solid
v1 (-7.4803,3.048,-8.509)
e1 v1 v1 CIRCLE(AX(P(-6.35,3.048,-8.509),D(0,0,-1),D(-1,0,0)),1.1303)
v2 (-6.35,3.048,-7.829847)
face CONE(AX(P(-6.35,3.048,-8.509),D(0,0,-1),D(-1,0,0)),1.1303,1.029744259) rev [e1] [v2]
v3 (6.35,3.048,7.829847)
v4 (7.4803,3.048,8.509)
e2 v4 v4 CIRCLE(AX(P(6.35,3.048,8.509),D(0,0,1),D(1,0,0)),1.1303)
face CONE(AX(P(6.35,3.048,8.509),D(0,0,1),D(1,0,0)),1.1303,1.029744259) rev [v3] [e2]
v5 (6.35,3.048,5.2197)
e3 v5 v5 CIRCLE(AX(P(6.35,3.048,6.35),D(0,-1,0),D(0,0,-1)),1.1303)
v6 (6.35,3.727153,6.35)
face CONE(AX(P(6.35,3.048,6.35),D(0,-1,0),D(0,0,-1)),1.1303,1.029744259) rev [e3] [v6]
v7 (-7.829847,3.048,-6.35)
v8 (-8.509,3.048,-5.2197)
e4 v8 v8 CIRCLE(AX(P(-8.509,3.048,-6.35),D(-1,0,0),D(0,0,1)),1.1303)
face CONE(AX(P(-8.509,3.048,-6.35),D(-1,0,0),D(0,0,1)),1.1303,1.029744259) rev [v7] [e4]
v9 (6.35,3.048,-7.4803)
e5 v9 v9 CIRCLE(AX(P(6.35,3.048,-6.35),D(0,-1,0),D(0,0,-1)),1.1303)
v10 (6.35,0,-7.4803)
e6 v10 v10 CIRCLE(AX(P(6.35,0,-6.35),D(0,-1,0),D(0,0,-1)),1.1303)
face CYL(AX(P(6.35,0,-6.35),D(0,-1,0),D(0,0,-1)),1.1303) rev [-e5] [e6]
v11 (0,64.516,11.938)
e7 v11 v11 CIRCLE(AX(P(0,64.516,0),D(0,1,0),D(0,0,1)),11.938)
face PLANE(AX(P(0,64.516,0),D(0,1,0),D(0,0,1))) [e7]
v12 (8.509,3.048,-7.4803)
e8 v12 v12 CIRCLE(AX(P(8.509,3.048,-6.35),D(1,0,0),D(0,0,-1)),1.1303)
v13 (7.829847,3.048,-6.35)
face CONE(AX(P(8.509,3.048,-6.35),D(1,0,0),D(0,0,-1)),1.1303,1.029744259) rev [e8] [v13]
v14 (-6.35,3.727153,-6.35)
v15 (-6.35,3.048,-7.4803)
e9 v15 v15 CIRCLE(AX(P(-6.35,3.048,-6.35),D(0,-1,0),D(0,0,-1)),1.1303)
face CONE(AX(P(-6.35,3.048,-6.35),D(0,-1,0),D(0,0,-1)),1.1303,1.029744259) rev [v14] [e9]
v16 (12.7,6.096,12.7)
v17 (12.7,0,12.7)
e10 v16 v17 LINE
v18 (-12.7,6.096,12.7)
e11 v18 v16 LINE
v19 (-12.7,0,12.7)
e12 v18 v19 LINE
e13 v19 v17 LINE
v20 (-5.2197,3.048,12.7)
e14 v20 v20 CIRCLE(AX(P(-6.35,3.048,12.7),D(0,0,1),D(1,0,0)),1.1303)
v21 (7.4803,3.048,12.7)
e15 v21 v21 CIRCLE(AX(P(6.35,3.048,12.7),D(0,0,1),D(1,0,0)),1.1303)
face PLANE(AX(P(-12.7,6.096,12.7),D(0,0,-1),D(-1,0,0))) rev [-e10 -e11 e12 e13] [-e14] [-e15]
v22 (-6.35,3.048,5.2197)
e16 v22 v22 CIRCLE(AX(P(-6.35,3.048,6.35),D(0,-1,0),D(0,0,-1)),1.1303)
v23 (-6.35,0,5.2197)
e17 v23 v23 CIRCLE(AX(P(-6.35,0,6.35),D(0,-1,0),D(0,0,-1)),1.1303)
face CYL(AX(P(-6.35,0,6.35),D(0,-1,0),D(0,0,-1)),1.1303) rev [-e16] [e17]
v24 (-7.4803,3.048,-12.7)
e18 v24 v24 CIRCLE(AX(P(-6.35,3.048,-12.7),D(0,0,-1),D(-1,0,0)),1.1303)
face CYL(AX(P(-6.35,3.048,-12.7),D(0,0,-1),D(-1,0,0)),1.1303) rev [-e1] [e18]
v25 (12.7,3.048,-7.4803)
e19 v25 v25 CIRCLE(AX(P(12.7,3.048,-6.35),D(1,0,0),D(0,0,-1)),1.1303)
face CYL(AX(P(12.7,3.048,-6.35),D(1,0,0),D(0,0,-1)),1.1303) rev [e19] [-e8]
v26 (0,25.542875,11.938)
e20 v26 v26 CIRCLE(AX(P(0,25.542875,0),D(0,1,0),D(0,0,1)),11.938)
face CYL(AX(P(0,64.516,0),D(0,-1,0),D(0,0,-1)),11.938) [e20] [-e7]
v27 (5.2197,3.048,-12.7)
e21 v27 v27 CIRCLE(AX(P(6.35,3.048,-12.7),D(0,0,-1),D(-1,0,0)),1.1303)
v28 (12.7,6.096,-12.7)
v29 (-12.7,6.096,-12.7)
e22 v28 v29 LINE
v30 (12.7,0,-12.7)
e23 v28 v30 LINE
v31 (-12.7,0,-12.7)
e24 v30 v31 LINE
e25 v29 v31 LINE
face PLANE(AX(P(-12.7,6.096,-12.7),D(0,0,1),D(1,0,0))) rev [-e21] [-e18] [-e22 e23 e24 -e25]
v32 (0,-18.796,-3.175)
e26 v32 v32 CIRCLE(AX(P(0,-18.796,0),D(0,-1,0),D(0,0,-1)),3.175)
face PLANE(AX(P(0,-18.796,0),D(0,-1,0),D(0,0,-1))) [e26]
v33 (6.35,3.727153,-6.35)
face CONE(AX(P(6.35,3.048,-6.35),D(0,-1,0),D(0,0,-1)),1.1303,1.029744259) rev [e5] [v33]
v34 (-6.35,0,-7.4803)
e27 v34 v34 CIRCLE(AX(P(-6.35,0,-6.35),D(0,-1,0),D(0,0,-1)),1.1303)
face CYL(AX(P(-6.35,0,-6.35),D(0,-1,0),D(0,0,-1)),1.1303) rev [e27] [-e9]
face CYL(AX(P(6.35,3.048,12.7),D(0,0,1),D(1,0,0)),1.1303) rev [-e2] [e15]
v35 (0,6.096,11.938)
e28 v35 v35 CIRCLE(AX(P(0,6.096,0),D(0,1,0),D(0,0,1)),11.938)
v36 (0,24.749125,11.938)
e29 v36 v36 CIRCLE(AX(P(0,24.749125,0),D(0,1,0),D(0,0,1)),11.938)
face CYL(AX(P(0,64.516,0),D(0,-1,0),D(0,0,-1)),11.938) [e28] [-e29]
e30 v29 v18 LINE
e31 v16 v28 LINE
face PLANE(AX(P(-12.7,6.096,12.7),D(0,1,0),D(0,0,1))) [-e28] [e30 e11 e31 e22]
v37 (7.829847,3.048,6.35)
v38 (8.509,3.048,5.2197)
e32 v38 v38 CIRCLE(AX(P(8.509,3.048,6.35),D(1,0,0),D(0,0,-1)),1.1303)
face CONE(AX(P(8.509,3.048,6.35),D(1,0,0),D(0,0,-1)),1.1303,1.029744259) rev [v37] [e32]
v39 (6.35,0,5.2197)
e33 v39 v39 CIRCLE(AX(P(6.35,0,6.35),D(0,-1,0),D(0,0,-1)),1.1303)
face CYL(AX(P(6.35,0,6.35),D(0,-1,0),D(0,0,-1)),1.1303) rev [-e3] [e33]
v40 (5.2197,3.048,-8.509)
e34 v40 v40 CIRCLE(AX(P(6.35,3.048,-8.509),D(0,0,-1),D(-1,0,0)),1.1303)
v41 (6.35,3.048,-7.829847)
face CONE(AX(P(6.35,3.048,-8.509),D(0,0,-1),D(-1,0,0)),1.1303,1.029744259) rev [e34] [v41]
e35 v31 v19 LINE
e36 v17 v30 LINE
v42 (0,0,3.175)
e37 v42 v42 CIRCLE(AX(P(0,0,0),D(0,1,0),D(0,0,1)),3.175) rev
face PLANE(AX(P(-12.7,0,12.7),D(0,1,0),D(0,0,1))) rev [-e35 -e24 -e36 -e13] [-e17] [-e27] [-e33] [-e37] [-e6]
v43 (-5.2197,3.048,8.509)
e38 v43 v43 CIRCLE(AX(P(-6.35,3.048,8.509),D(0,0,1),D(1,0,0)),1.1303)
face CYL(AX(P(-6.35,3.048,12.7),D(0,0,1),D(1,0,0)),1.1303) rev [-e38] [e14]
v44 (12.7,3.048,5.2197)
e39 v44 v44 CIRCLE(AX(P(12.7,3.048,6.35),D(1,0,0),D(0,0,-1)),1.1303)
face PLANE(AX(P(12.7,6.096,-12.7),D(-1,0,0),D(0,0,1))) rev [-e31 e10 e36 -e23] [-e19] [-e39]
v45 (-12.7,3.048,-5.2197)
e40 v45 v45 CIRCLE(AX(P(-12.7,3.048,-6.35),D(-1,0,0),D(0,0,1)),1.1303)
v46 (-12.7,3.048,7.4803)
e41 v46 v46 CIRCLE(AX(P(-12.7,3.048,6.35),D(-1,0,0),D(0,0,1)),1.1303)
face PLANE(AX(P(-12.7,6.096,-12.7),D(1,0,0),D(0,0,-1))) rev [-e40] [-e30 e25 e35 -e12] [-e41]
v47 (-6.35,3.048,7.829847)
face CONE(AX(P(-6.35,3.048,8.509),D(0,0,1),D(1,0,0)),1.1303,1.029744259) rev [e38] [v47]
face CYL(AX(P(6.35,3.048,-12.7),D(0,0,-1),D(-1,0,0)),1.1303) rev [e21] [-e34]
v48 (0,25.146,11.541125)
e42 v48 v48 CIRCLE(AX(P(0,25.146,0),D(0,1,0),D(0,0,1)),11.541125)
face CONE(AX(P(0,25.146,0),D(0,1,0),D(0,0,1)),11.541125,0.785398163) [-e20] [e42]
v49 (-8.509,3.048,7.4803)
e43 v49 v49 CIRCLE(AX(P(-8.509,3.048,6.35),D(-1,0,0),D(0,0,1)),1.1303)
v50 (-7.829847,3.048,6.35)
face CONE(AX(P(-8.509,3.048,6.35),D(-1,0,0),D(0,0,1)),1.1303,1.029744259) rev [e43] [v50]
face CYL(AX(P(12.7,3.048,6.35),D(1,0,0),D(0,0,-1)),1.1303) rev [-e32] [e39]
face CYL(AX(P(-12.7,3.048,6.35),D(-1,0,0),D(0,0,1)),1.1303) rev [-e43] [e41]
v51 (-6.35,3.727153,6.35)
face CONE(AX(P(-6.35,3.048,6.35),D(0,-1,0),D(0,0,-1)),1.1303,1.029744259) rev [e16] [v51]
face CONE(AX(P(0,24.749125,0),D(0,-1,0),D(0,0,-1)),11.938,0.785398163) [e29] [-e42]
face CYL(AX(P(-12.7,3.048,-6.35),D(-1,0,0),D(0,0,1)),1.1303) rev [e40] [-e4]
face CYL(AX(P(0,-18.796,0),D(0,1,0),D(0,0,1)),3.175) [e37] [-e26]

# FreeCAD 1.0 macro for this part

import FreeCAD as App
import Part
import Sketcher

V = App.Vector
Q = App.Units.Quantity

doc = App.newDocument("Part")
body = doc.addObject("PartDesign::Body", "Body")

sketch1 = body.newObject("Sketcher::SketchObject", "Sketch")
sketch1.AttachmentSupport = (doc.getObject("XZ_Plane"), [""])
sketch1.MapMode = "FlatFace"
sketch1.addGeometry([
    Part.LineSegment(V(-13, -13, 0), V(-13, 13, 0)),
    Part.LineSegment(V(-13, 13, 0), V(13, 13, 0)),
    Part.LineSegment(V(13, 13, 0), V(13, -13, 0)),
    Part.LineSegment(V(13, -13, 0), V(-13, -13, 0)),
], False)
sketch1.addConstraint([
    Sketcher.Constraint("Coincident", 0, 2, 1, 1),
    Sketcher.Constraint("Coincident", 1, 2, 2, 1),
    Sketcher.Constraint("Coincident", 2, 2, 3, 1),
    Sketcher.Constraint("Coincident", 3, 2, 0, 1),
    Sketcher.Constraint("Vertical", 0),
    Sketcher.Constraint("Horizontal", 1),
    Sketcher.Constraint("Vertical", 2),
    Sketcher.Constraint("Horizontal", 3),
    Sketcher.Constraint("Symmetric", 0, 2, 2, 2, -1, 1),
    Sketcher.Constraint("Equal", 3, 0),
    Sketcher.Constraint("DistanceX", 1, 1, 1, 2, Q("1 in")),
])
pad1 = body.newObject("PartDesign::Pad", "Pad")
pad1.Profile = sketch1
pad1.Length = Q("0.24 in")
pad1.Reversed = True

sketch2 = body.newObject("Sketcher::SketchObject", "Sketch001")
sketch2.AttachmentSupport = (doc.getObject("XZ_Plane"), [""])
sketch2.MapMode = "FlatFace"
sketch2.AttachmentOffset = App.Placement(V(0, 0, -0.24 * 25.4), App.Rotation())
sketch2.addGeometry(Part.Circle(V(0, 0, 0), V(0, 0, 1), 12), False)
sketch2.addConstraint([
    Sketcher.Constraint("Coincident", 0, 3, -1, 1),
    Sketcher.Constraint("Diameter", 0, Q("0.94 in")),
])
pad2 = body.newObject("PartDesign::Pad", "Pad001")
pad2.Profile = sketch2
pad2.Length = Q("2.3 in")
pad2.Reversed = True

sketch3 = body.newObject("Sketcher::SketchObject", "Sketch002")
sketch3.AttachmentSupport = (doc.getObject("XZ_Plane"), [""])
sketch3.MapMode = "FlatFace"
sketch3.addGeometry(Part.Circle(V(0, 0, 0), V(0, 0, 1), 3.2), False)
sketch3.addConstraint([
    Sketcher.Constraint("Coincident", 0, 3, -1, 1),
    Sketcher.Constraint("Diameter", 0, Q("0.25 in")),
])
pad3 = body.newObject("PartDesign::Pad", "Pad002")
pad3.Profile = sketch3
pad3.Length = Q("0.74 in")

sketch4 = body.newObject("Sketcher::SketchObject", "Sketch003")
sketch4.AttachmentSupport = (doc.getObject("XZ_Plane"), [""])
sketch4.MapMode = "FlatFace"
sketch4.addGeometry([
    Part.Circle(V(6.3, -6.3, 0), V(0, 0, 1), 1.1),
    Part.Circle(V(6.3, 6.3, 0), V(0, 0, 1), 1.1),
    Part.Circle(V(-6.3, 6.3, 0), V(0, 0, 1), 1.1),
    Part.Circle(V(-6.3, -6.3, 0), V(0, 0, 1), 1.1),
], False)
sketch4.addConstraint([
    Sketcher.Constraint("Equal", 0, 1),
    Sketcher.Constraint("Equal", 1, 2),
    Sketcher.Constraint("Equal", 2, 3),
    Sketcher.Constraint("Symmetric", 0, 3, 2, 3, -1, 1),
    Sketcher.Constraint("Symmetric", 1, 3, 3, 3, -1, 1),
    Sketcher.Constraint("Symmetric", 1, 3, 2, 3, -2),
    Sketcher.Constraint("Diameter", 0, Q("0.089 in")),
    Sketcher.Constraint("DistanceY", 0, 3, 1, 3, Q("0.5 in")),
    Sketcher.Constraint("DistanceX", 2, 3, 1, 3, Q("0.5 in")),
])
doc.recompute()
hole = body.newObject("PartDesign::Hole", "Hole")
hole.Profile = sketch4
hole.ThreadType = "None"
hole.Diameter = Q("0.089 in")
hole.DepthType = "Dimension"
hole.Depth = Q("0.12 in")
hole.DrillPoint = "Angled"
hole.DrillPointAngle = 118

sketch5 = body.newObject("Sketcher::SketchObject", "Sketch004")
sketch5.AttachmentSupport = (doc.getObject("XZ_Plane"), [""])
sketch5.MapMode = "FlatFace"
sketch5.AttachmentOffset = App.Placement(V(0, 0, -0.12 * 25.4), App.Rotation())
sketch5.addGeometry([
    Part.LineSegment(V(-7.8, -6.3, 0), V(-12.7, -6.3, 0)),
    Part.LineSegment(V(-12.7, -6.3, 0), V(-12.7, -5.2, 0)),
    Part.LineSegment(V(-12.7, -5.2, 0), V(-8.5, -5.2, 0)),
    Part.LineSegment(V(-8.5, -5.2, 0), V(-7.8, -6.3, 0)),
], False)
sketch5.addGeometry(Part.LineSegment(V(-12.7, -6.3, 0), V(-7.8, -6.3, 0)), True)
sketch5.addConstraint([
    Sketcher.Constraint("Coincident", 0, 2, 1, 1),
    Sketcher.Constraint("Coincident", 1, 2, 2, 1),
    Sketcher.Constraint("Coincident", 2, 2, 3, 1),
    Sketcher.Constraint("Coincident", 3, 2, 0, 1),
    Sketcher.Constraint("Horizontal", 0),
    Sketcher.Constraint("Vertical", 1),
    Sketcher.Constraint("Horizontal", 2),
    Sketcher.Constraint("Horizontal", 4),
    Sketcher.Constraint("Coincident", 4, 1, 0, 2),
    Sketcher.Constraint("Equal", 0, 4),
    Sketcher.Constraint("Angle", 3, Q("-59 deg")),
    Sketcher.Constraint("DistanceX", 0, 2, -1, 1, Q("0.5 in")),
    Sketcher.Constraint("DistanceX", 2, 1, 2, 2, Q("0.165 in")),
    Sketcher.Constraint("DistanceY", 0, 2, -1, 1, Q("0.25 in")),
    Sketcher.Constraint("DistanceY", 1, 1, 1, 2, Q("0.0445 in")),
])
groove = body.newObject("PartDesign::Groove", "Groove")
groove.Profile = sketch5
groove.ReferenceAxis = (sketch5, ["Axis0"])
groove.Angle = 360
doc.recompute()

linearpattern = body.newObject("PartDesign::LinearPattern", "LinearPattern")
linearpattern.Originals = [groove]
linearpattern.Direction = (doc.getObject("Z_Axis"), [""])
linearpattern.Mode = "offset"
linearpattern.Offset = Q("0.5 in")
linearpattern.Occurrences = 2
body.Tip = linearpattern
doc.recompute()

polarpattern = body.newObject("PartDesign::PolarPattern", "PolarPattern")
polarpattern.Originals = [groove]
polarpattern.Axis = (doc.getObject("Y_Axis"), [""])
polarpattern.Angle = 360
polarpattern.Occurrences = 4
body.Tip = polarpattern

sketch6 = body.newObject("Sketcher::SketchObject", "Sketch005")
sketch6.AttachmentSupport = (doc.getObject("XZ_Plane"), [""])
sketch6.MapMode = "FlatFace"
sketch6.AttachmentOffset = App.Placement(V(0, 0, -0.12 * 25.4), App.Rotation())
sketch6.addGeometry([
    Part.LineSegment(V(6.3, 7.8, 0), V(6.3, 12.7, 0)),
    Part.LineSegment(V(6.3, 12.7, 0), V(7.5, 12.7, 0)),
    Part.LineSegment(V(7.5, 12.7, 0), V(7.5, 8.5, 0)),
    Part.LineSegment(V(7.5, 8.5, 0), V(6.3, 7.8, 0)),
], False)
sketch6.addGeometry(Part.LineSegment(V(6.3, 12.7, 0), V(6.3, 7.8, 0)), True)
sketch6.addConstraint([
    Sketcher.Constraint("Coincident", 0, 2, 1, 1),
    Sketcher.Constraint("Coincident", 1, 2, 2, 1),
    Sketcher.Constraint("Coincident", 2, 2, 3, 1),
    Sketcher.Constraint("Coincident", 3, 2, 0, 1),
    Sketcher.Constraint("Vertical", 0),
    Sketcher.Constraint("Horizontal", 1),
    Sketcher.Constraint("Vertical", 2),
    Sketcher.Constraint("Vertical", 4),
    Sketcher.Constraint("Coincident", 4, 1, 0, 2),
    Sketcher.Constraint("Equal", 0, 4),
    Sketcher.Constraint("Angle", 3, Q("-149 deg")),
    Sketcher.Constraint("DistanceY", -1, 1, 0, 2, Q("0.5 in")),
    Sketcher.Constraint("DistanceY", 2, 2, 2, 1, Q("0.165 in")),
    Sketcher.Constraint("DistanceX", -1, 1, 0, 2, Q("0.25 in")),
    Sketcher.Constraint("DistanceX", 1, 1, 1, 2, Q("0.0445 in")),
])
groove2 = body.newObject("PartDesign::Groove", "Groove001")
groove2.Profile = sketch6
groove2.ReferenceAxis = (sketch6, ["Axis0"])
groove2.Angle = 360

sketch7 = body.newObject("Sketcher::SketchObject", "Sketch006")
sketch7.AttachmentSupport = (doc.getObject("XZ_Plane"), [""])
sketch7.MapMode = "FlatFace"
sketch7.AttachmentOffset = App.Placement(V(0, 0, -0.12 * 25.4), App.Rotation())
sketch7.addGeometry([
    Part.LineSegment(V(7.8, -6.3, 0), V(12.7, -6.3, 0)),
    Part.LineSegment(V(12.7, -6.3, 0), V(12.7, -7.5, 0)),
    Part.LineSegment(V(12.7, -7.5, 0), V(8.5, -7.5, 0)),
    Part.LineSegment(V(8.5, -7.5, 0), V(7.8, -6.3, 0)),
], False)
sketch7.addGeometry(Part.LineSegment(V(12.7, -6.3, 0), V(7.8, -6.3, 0)), True)
sketch7.addConstraint([
    Sketcher.Constraint("Coincident", 0, 2, 1, 1),
    Sketcher.Constraint("Coincident", 1, 2, 2, 1),
    Sketcher.Constraint("Coincident", 2, 2, 3, 1),
    Sketcher.Constraint("Coincident", 3, 2, 0, 1),
    Sketcher.Constraint("Horizontal", 0),
    Sketcher.Constraint("Vertical", 1),
    Sketcher.Constraint("Horizontal", 2),
    Sketcher.Constraint("Horizontal", 4),
    Sketcher.Constraint("Coincident", 4, 1, 0, 2),
    Sketcher.Constraint("Equal", 0, 4),
    Sketcher.Constraint("Angle", 3, Q("121 deg")),
    Sketcher.Constraint("DistanceX", -1, 1, 0, 2, Q("0.5 in")),
    Sketcher.Constraint("DistanceX", 2, 2, 2, 1, Q("0.165 in")),
    Sketcher.Constraint("DistanceY", 0, 2, -1, 1, Q("0.25 in")),
    Sketcher.Constraint("DistanceY", 1, 2, 1, 1, Q("0.0445 in")),
])
groove3 = body.newObject("PartDesign::Groove", "Groove002")
groove3.Profile = sketch7
groove3.ReferenceAxis = (sketch7, ["Axis0"])
groove3.Angle = 360

sketch8 = body.newObject("Sketcher::SketchObject", "Sketch007")
sketch8.AttachmentSupport = (doc.getObject("XZ_Plane"), [""])
sketch8.MapMode = "FlatFace"
sketch8.AttachmentOffset = App.Placement(V(0, 0, -0.12 * 25.4), App.Rotation())
sketch8.addGeometry([
    Part.LineSegment(V(-6.3, -7.8, 0), V(-6.3, -12.7, 0)),
    Part.LineSegment(V(-6.3, -12.7, 0), V(-7.5, -12.7, 0)),
    Part.LineSegment(V(-7.5, -12.7, 0), V(-7.5, -8.5, 0)),
    Part.LineSegment(V(-7.5, -8.5, 0), V(-6.3, -7.8, 0)),
], False)
sketch8.addGeometry(Part.LineSegment(V(-6.3, -12.7, 0), V(-6.3, -7.8, 0)), True)
sketch8.addConstraint([
    Sketcher.Constraint("Coincident", 0, 2, 1, 1),
    Sketcher.Constraint("Coincident", 1, 2, 2, 1),
    Sketcher.Constraint("Coincident", 2, 2, 3, 1),
    Sketcher.Constraint("Coincident", 3, 2, 0, 1),
    Sketcher.Constraint("Vertical", 0),
    Sketcher.Constraint("Horizontal", 1),
    Sketcher.Constraint("Vertical", 2),
    Sketcher.Constraint("Vertical", 4),
    Sketcher.Constraint("Coincident", 4, 1, 0, 2),
    Sketcher.Constraint("Equal", 0, 4),
    Sketcher.Constraint("Angle", 3, Q("31 deg")),
    Sketcher.Constraint("DistanceY", 0, 2, -1, 1, Q("0.5 in")),
    Sketcher.Constraint("DistanceY", 2, 1, 2, 2, Q("0.165 in")),
    Sketcher.Constraint("DistanceX", 0, 2, -1, 1, Q("0.25 in")),
    Sketcher.Constraint("DistanceX", 1, 2, 1, 1, Q("0.0445 in")),
])
groove4 = body.newObject("PartDesign::Groove", "Groove003")
groove4.Profile = sketch8
groove4.ReferenceAxis = (sketch8, ["Axis0"])
groove4.Angle = 360

sketch9 = body.newObject("Sketcher::SketchObject", "Sketch008")
sketch9.AttachmentSupport = (doc.getObject("XY_Plane"), [""])
sketch9.MapMode = "FlatFace"
sketch9.addGeometry([
    Part.LineSegment(V(-11.5, 25.1, 0), V(-11.9, 25.5, 0)),
    Part.LineSegment(V(-11.9, 25.5, 0), V(-11.9, 24.7, 0)),
    Part.LineSegment(V(-11.9, 24.7, 0), V(-11.5, 25.1, 0)),
], False)
sketch9.addConstraint([
    Sketcher.Constraint("Coincident", 0, 2, 1, 1),
    Sketcher.Constraint("Coincident", 1, 2, 2, 1),
    Sketcher.Constraint("Coincident", 2, 2, 0, 1),
    Sketcher.Constraint("Vertical", 1),
    Sketcher.Constraint("Perpendicular", 0, 2),
    Sketcher.Constraint("Equal", 0, 2),
    Sketcher.Constraint("DistanceY", 1, 2, 1, 1, Q("0.03125 in")),
    Sketcher.Constraint("DistanceX", 0, 2, -1, 1, Q("0.47 in")),
    Sketcher.Constraint("DistanceY", -1, 1, 2, 2, Q("0.99 in")),
])
groove5 = body.newObject("PartDesign::Groove", "Groove004")
groove5.Profile = sketch9
groove5.ReferenceAxis = (sketch9, ["V_Axis"])
groove5.Angle = 360

doc.recompute()
